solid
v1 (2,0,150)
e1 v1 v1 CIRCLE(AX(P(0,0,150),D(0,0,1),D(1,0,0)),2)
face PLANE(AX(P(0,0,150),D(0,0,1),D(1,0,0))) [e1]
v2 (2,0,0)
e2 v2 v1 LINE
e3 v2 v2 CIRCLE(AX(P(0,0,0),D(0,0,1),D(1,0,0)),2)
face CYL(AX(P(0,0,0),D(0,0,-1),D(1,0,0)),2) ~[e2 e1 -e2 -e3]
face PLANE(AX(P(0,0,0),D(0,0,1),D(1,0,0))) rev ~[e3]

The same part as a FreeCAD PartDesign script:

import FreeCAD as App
import Part
import Sketcher
from FreeCAD import Vector

doc = App.newDocument("Part")
body = doc.addObject("PartDesign::Body", "Body")

sketch1 = body.newObject("Sketcher::SketchObject", "Sketch")
sketch1.AttachmentSupport = (doc.getObject("XY_Plane"), [""])
sketch1.MapMode = "FlatFace"
sketch1.addGeometry(Part.Circle(Vector(0, 0, 0), Vector(0, 0, 1), 2), False)
sketch1.addConstraint([
    Sketcher.Constraint("Coincident", 0, 3, -1, 1),
    Sketcher.Constraint("Diameter", 0, 4.0),
])
pad1 = body.newObject("PartDesign::Pad", "Pad")
pad1.Profile = sketch1
pad1.Length = 150

doc.recompute()
